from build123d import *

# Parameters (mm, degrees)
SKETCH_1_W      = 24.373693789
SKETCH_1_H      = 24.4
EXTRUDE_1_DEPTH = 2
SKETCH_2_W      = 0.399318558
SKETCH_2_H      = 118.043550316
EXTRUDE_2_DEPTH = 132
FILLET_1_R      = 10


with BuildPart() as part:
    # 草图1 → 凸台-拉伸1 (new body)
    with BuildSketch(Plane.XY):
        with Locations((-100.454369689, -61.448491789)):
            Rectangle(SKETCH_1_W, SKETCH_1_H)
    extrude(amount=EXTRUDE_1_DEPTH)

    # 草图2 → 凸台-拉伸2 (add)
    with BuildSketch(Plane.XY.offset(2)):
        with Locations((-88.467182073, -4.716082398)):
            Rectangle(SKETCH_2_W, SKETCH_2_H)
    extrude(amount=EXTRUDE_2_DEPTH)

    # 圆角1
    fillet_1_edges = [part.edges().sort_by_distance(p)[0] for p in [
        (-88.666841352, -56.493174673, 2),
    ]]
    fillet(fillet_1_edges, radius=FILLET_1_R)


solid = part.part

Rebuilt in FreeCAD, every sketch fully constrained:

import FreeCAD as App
import Part
import Sketcher

V = App.Vector
Q = App.Units.Quantity


def edges_at(feature, points):
    """Names of the edges that pass closest to the given points."""
    edges = feature.Shape.Edges
    near = lambda p: min(range(len(edges)), key=lambda i: edges[i].distToShape(Part.Vertex(*p))[0])
    return sorted({f"Edge{near(p) + 1}" for p in points})

doc = App.newDocument("Part")
body = doc.addObject("PartDesign::Body", "Body")

# Sketch on XY plane
sketch1 = body.newObject("Sketcher::SketchObject", "Sketch")
sketch1.AttachmentSupport = (doc.getObject("XY_Plane"), [""])
sketch1.MapMode = "FlatFace"
sketch1.addGeometry([
    Part.LineSegment(V(-112.641217, -49.248492, 0), V(-112.641217, -73.648492, 0)),
    Part.LineSegment(V(-112.641217, -73.648492, 0), V(-88.267523, -73.648492, 0)),
    Part.LineSegment(V(-88.267523, -73.648492, 0), V(-88.267523, -49.248492, 0)),
    Part.LineSegment(V(-88.267523, -49.248492, 0), V(-112.641217, -49.248492, 0)),
], False)
sketch1.addConstraint([
    Sketcher.Constraint("Coincident", 0, 2, 1, 1),
    Sketcher.Constraint("Coincident", 1, 2, 2, 1),
    Sketcher.Constraint("Coincident", 2, 2, 3, 1),
    Sketcher.Constraint("Coincident", 3, 2, 0, 1),
    Sketcher.Constraint("Vertical", 0),
    Sketcher.Constraint("Horizontal", 1),
    Sketcher.Constraint("Vertical", 2),
    Sketcher.Constraint("Horizontal", 3),
    Sketcher.Constraint("DistanceY", 0, 2, 0, 1, Q("24.4 mm")),
    Sketcher.Constraint("DistanceX", 1, 1, 1, 2, Q("24.373694 mm")),
    Sketcher.Constraint("DistanceY", 0, 2, -1, 1, Q("73.648492 mm")),
    Sketcher.Constraint("DistanceX", 0, 2, -1, 1, Q("112.641217 mm")),
])
pad1 = body.newObject("PartDesign::Pad", "Pad")
pad1.Profile = sketch1
pad1.Length = 2

# Sketch on XY plane
sketch2 = body.newObject("Sketcher::SketchObject", "Sketch001")
sketch2.AttachmentSupport = (doc.getObject("XY_Plane"), [""])
sketch2.MapMode = "FlatFace"
sketch2.AttachmentOffset = App.Placement(V(0, 0, 2), App.Rotation())
sketch2.addGeometry([
    Part.LineSegment(V(-88.666841, 54.305693, 0), V(-88.666841, -63.737858, 0)),
    Part.LineSegment(V(-88.666841, -63.737858, 0), V(-88.267523, -63.737858, 0)),
    Part.LineSegment(V(-88.267523, -63.737858, 0), V(-88.267523, 54.305693, 0)),
    Part.LineSegment(V(-88.267523, 54.305693, 0), V(-88.666841, 54.305693, 0)),
], False)
sketch2.addConstraint([
    Sketcher.Constraint("Coincident", 0, 2, 1, 1),
    Sketcher.Constraint("Coincident", 1, 2, 2, 1),
    Sketcher.Constraint("Coincident", 2, 2, 3, 1),
    Sketcher.Constraint("Coincident", 3, 2, 0, 1),
    Sketcher.Constraint("Vertical", 0),
    Sketcher.Constraint("Horizontal", 1),
    Sketcher.Constraint("Vertical", 2),
    Sketcher.Constraint("Horizontal", 3),
    Sketcher.Constraint("DistanceX", 1, 1, 1, 2, Q("0.399319 mm")),
    Sketcher.Constraint("DistanceY", 0, 2, 0, 1, Q("118.04355 mm")),
    Sketcher.Constraint("DistanceX", 0, 2, -1, 1, Q("88.666841 mm")),
    Sketcher.Constraint("DistanceY", 0, 2, -1, 1, Q("63.737858 mm")),
])
pad2 = body.newObject("PartDesign::Pad", "Pad001")
pad2.Profile = sketch2
pad2.Length = 132
doc.recompute()

fillet = body.newObject("PartDesign::Fillet", "Fillet")
fillet.Base = (pad2, edges_at(pad2, [(-88.667, -56.493, 2)]))
fillet.Radius = 10

doc.recompute()
